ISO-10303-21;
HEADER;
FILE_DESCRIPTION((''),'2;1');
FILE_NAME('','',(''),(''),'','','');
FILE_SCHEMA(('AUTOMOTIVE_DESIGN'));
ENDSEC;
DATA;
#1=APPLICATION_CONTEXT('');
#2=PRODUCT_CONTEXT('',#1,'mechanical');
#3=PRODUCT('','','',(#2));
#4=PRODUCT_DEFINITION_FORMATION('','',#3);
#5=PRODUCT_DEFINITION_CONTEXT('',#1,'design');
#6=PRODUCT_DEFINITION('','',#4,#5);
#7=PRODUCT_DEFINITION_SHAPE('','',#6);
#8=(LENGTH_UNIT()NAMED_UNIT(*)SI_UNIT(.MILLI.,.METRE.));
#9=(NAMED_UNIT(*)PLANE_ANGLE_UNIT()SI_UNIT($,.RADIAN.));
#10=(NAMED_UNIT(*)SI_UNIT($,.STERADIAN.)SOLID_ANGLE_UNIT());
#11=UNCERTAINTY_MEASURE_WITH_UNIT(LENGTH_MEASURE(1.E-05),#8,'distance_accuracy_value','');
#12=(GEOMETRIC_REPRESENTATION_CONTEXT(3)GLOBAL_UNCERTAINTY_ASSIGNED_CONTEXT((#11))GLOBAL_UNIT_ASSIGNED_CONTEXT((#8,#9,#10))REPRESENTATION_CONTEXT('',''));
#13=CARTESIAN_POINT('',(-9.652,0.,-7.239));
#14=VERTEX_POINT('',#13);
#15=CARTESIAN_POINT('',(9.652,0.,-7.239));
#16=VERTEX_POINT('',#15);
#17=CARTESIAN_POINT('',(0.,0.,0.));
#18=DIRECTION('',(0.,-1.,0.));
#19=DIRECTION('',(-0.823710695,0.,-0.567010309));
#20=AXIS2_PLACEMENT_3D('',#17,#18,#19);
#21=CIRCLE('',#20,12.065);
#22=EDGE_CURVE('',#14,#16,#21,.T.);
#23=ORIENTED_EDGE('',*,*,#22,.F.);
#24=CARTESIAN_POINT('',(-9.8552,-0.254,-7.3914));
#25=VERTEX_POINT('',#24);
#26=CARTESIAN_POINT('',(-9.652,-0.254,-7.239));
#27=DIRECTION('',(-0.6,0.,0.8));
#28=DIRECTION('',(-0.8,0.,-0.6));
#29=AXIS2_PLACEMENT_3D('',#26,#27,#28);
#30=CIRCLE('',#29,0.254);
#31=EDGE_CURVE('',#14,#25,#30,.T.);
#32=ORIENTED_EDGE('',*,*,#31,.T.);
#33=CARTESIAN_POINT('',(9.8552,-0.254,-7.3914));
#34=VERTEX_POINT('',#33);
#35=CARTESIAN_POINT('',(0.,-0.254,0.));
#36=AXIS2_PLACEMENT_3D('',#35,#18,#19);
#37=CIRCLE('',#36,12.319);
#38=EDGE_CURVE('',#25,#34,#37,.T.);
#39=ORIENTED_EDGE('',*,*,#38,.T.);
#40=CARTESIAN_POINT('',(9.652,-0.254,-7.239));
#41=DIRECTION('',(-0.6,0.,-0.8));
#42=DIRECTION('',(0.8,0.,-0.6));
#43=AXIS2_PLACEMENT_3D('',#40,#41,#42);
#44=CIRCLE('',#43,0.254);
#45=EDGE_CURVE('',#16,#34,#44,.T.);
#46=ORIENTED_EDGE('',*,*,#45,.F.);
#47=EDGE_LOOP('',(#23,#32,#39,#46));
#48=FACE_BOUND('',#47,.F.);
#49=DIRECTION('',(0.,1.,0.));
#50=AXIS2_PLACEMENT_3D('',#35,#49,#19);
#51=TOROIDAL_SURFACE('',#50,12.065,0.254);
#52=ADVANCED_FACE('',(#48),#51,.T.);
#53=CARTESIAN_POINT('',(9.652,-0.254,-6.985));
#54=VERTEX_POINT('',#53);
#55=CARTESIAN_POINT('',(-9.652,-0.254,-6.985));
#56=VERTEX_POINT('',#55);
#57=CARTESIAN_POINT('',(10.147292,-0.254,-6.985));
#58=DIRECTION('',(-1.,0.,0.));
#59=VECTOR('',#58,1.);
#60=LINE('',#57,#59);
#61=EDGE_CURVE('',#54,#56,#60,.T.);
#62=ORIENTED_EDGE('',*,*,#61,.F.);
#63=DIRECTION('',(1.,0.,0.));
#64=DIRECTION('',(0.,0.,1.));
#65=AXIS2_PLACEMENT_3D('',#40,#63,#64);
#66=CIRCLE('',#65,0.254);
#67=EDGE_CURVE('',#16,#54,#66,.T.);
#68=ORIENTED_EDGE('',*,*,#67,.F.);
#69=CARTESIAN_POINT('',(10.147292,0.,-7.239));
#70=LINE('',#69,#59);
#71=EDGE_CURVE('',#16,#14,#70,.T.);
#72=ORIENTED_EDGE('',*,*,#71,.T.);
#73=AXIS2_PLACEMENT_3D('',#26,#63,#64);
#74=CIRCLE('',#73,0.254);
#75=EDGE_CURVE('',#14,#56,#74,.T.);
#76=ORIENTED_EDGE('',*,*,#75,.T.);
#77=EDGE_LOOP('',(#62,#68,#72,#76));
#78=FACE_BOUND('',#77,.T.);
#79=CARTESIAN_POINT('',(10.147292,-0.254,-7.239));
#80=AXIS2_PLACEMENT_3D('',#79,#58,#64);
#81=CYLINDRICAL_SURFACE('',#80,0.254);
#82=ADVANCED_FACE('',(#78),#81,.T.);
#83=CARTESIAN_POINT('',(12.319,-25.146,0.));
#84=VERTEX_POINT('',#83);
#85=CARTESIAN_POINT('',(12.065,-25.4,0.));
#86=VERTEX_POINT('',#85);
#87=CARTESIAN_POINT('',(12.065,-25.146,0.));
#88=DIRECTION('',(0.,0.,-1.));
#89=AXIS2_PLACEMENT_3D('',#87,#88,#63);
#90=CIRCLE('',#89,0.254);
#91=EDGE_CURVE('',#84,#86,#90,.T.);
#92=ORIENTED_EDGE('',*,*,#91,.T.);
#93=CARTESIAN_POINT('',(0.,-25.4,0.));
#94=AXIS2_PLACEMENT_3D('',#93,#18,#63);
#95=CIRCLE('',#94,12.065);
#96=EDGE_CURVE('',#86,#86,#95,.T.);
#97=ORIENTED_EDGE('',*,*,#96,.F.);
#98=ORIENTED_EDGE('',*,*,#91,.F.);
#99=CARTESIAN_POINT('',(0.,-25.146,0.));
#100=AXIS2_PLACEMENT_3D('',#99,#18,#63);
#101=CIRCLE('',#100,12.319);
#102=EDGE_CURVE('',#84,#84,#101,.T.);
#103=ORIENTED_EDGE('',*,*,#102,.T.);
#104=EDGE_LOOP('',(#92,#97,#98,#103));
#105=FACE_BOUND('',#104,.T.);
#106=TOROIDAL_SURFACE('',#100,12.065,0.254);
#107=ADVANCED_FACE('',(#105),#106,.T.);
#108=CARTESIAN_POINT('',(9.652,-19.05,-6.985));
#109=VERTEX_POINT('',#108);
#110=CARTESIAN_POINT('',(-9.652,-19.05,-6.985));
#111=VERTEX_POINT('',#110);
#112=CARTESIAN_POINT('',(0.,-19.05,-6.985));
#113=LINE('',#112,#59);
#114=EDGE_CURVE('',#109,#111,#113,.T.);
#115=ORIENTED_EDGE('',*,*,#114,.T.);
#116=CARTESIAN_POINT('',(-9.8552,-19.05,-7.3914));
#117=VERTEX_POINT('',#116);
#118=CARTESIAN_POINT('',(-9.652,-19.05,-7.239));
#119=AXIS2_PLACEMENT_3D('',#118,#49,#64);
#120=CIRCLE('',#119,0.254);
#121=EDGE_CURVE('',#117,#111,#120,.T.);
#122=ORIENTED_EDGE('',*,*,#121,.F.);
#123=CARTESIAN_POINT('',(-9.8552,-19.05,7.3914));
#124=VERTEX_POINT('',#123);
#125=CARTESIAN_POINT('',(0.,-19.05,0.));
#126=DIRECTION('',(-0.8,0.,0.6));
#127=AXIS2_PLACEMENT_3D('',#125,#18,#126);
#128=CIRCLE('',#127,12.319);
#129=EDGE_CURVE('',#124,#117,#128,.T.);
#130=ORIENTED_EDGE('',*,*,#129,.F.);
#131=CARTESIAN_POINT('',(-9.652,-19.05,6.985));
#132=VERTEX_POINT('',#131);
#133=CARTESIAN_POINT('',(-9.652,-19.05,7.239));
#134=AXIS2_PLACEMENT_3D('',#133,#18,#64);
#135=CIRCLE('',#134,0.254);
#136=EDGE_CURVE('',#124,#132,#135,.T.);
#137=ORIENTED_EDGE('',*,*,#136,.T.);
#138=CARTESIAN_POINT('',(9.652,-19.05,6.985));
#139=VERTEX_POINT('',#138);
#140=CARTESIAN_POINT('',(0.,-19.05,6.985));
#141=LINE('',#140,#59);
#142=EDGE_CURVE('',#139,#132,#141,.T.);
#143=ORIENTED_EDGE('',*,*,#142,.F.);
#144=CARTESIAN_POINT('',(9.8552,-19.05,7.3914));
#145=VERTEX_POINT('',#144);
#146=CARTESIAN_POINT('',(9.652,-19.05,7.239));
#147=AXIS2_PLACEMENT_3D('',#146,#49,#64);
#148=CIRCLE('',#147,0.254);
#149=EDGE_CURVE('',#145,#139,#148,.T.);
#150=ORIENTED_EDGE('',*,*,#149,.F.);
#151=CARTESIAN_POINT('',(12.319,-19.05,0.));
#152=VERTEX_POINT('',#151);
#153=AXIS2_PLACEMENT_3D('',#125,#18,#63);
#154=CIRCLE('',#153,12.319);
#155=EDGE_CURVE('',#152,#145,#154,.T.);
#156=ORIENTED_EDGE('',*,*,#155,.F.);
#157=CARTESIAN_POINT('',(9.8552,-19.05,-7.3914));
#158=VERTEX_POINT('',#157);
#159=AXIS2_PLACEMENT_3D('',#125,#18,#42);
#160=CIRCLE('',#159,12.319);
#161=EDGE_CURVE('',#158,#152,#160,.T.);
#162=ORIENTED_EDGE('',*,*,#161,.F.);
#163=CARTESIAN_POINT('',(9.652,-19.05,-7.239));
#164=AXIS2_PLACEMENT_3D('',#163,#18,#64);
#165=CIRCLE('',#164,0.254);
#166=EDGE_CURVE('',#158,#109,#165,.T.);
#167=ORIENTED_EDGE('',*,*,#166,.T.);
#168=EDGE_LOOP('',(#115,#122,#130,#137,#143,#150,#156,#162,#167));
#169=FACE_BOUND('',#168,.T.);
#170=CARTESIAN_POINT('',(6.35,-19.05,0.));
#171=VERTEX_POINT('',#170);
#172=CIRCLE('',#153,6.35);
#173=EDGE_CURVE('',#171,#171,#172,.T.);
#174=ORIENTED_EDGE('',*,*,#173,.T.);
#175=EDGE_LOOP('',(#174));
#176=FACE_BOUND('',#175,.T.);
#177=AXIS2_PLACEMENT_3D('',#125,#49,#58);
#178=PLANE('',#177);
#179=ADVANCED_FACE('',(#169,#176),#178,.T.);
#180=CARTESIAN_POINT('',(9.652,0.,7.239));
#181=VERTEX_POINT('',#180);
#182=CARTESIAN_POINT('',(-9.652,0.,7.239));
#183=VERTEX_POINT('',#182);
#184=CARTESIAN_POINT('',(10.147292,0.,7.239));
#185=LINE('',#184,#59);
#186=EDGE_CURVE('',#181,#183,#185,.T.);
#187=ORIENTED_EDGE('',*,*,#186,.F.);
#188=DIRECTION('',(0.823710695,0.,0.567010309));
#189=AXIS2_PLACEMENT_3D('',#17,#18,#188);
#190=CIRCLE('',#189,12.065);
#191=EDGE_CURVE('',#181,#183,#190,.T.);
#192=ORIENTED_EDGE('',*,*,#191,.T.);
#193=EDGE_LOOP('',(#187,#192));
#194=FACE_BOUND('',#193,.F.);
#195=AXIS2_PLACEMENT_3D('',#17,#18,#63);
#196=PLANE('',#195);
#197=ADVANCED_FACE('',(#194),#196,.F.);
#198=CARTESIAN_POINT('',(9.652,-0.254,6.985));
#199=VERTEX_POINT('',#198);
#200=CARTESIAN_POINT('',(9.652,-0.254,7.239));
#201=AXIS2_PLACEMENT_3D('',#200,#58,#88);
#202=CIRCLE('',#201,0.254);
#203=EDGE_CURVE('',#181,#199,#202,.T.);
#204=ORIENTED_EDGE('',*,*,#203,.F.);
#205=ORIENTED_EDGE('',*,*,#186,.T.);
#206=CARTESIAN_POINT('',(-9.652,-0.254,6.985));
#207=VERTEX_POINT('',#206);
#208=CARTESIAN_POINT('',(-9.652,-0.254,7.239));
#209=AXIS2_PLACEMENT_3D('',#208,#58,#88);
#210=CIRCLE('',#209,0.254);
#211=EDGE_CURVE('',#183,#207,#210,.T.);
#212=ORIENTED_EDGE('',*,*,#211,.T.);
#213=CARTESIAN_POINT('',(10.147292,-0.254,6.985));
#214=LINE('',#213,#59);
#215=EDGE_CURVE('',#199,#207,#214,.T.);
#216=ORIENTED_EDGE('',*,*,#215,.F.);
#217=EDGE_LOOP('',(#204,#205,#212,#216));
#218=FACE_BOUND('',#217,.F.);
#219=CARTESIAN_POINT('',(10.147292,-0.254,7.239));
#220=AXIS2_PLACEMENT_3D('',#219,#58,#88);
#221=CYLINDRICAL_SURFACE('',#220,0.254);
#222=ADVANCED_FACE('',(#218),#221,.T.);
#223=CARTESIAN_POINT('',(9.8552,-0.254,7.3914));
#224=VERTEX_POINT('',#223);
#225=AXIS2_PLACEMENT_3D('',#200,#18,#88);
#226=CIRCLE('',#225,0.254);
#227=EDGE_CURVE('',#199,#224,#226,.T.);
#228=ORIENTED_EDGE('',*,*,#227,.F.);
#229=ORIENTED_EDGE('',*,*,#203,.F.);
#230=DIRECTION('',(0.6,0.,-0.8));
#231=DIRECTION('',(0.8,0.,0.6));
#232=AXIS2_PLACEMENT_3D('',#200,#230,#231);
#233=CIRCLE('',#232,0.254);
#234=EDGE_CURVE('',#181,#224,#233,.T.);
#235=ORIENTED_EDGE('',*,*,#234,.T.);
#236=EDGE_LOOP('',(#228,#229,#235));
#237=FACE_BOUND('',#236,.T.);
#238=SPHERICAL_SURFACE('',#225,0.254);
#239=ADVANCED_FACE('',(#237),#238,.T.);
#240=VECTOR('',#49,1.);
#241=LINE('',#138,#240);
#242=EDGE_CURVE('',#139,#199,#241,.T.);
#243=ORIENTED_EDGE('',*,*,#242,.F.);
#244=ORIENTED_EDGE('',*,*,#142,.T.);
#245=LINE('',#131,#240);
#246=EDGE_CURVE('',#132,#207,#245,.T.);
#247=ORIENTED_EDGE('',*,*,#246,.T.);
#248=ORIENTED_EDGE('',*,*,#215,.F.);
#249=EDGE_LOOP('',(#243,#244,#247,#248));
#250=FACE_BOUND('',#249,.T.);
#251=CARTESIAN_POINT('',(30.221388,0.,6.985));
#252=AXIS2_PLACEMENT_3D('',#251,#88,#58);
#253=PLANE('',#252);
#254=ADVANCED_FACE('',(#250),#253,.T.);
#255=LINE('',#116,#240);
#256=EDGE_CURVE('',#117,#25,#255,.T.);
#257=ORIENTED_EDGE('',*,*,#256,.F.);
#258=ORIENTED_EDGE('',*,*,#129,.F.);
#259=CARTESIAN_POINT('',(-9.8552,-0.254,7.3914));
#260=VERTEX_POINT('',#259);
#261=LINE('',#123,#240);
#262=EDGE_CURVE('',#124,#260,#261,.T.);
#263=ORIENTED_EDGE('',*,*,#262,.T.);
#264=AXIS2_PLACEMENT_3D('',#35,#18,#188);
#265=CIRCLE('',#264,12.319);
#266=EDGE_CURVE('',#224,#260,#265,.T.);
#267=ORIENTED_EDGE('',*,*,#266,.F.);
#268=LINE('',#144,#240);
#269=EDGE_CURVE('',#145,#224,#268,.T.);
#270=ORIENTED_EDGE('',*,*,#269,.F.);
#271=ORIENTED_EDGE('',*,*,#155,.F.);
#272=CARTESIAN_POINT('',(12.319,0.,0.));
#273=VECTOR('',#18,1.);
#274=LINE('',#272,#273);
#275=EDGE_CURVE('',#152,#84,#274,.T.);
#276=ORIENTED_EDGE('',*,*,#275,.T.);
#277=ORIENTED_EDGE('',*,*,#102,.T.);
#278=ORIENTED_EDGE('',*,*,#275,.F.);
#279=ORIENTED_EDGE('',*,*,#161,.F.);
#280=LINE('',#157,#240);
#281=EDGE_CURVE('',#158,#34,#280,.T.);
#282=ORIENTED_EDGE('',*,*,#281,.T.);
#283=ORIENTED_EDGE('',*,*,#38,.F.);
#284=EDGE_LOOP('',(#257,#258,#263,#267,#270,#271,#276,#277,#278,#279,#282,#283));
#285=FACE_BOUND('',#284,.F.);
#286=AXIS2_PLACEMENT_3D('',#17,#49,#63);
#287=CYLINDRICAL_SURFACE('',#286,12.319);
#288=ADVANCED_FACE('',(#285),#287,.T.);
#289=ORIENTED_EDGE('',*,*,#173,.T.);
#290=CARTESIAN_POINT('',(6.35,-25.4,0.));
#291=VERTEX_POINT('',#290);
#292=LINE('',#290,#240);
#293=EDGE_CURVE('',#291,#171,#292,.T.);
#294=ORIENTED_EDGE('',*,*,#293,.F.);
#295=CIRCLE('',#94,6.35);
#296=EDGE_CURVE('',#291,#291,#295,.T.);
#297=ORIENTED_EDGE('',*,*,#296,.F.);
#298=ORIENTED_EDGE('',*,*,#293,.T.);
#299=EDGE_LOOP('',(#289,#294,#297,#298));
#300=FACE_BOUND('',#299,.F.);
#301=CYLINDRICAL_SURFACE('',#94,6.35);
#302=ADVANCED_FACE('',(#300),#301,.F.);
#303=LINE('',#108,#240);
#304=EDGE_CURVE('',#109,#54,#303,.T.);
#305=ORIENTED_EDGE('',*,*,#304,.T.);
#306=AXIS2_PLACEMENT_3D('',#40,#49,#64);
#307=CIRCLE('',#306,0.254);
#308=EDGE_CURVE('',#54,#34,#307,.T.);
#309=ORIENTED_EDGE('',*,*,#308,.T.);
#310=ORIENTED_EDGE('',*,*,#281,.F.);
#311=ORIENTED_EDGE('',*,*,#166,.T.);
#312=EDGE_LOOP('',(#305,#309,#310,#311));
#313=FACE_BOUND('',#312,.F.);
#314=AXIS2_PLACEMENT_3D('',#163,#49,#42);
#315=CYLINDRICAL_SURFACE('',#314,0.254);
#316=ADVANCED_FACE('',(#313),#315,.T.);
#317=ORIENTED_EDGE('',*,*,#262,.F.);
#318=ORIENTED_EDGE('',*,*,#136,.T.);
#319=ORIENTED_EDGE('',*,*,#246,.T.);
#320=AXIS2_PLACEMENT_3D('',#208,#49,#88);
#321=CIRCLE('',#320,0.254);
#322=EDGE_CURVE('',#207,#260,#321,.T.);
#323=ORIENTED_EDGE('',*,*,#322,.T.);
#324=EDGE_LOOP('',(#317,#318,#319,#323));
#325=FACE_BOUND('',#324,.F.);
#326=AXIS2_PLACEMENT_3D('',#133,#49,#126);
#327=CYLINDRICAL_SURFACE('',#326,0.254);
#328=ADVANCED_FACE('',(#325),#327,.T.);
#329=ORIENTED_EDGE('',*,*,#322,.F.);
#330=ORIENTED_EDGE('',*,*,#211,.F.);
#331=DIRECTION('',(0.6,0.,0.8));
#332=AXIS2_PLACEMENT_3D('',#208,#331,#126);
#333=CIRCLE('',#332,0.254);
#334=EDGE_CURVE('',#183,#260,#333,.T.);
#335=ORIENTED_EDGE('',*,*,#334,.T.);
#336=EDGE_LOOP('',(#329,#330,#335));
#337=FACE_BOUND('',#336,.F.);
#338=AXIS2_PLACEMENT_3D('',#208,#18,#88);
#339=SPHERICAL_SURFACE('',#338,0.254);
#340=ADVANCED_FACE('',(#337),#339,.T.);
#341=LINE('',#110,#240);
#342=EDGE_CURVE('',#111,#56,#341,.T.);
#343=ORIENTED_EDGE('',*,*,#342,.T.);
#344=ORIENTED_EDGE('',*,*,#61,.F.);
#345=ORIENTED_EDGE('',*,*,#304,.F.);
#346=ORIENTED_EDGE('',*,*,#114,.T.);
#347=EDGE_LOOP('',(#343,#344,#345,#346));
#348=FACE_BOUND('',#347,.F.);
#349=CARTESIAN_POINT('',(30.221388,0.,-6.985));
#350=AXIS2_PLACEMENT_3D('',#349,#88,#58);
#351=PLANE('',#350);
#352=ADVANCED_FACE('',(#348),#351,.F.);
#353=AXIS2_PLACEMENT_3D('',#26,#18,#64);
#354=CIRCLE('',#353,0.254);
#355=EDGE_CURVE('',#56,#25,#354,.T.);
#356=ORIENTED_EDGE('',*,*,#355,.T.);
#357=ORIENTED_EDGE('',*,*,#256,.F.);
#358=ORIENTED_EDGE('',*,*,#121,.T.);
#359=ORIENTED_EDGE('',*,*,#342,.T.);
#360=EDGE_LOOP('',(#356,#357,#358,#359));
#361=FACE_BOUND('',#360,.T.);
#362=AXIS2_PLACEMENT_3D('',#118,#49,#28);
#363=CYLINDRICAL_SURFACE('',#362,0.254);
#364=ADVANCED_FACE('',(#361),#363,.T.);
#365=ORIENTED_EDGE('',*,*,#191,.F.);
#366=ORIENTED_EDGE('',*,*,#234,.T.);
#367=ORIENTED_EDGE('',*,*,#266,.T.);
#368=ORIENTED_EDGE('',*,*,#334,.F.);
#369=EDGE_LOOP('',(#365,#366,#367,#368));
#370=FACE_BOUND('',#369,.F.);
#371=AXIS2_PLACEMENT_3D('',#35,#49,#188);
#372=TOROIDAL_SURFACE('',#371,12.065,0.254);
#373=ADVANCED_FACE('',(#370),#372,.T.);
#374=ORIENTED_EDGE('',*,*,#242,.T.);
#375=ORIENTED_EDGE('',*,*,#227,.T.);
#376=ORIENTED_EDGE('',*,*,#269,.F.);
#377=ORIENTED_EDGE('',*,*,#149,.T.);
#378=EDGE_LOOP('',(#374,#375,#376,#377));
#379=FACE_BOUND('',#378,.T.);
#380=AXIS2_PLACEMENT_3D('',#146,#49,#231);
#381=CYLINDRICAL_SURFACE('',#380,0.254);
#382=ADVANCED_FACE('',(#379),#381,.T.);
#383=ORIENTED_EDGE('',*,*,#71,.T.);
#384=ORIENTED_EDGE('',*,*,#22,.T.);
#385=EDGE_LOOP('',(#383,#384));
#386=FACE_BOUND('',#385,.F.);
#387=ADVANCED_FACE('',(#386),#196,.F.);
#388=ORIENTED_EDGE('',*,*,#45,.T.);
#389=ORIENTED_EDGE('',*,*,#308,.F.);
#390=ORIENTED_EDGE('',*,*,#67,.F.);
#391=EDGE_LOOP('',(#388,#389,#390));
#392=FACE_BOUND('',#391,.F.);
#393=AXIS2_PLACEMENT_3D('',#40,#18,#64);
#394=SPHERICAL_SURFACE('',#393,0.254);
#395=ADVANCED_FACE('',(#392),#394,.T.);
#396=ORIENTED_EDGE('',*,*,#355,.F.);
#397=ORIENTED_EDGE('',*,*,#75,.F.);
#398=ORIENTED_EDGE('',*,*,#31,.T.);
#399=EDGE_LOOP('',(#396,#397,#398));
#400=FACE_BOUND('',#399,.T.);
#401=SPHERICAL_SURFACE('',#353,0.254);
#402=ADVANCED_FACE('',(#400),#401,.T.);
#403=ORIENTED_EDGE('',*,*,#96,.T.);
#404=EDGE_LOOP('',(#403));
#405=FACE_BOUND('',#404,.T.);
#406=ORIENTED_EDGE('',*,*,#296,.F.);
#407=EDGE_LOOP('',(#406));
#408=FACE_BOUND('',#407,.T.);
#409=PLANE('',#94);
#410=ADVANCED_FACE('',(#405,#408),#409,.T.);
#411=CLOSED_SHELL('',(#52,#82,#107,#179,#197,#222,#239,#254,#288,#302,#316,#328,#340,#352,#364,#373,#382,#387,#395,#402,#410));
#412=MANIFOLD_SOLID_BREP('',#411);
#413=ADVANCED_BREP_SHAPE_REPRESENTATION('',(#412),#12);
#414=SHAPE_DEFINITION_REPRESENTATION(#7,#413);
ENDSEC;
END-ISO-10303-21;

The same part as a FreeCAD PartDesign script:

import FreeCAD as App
import Part
import Sketcher
Q = App.Units.Quantity


def edges_at(feature, points):
    """Names of the edges that pass closest to the given points."""
    edges = feature.Shape.Edges
    near = lambda p: min(range(len(edges)), key=lambda i: edges[i].distToShape(Part.Vertex(*p))[0])
    return sorted({f"Edge{near(p) + 1}" for p in points})

doc = App.newDocument("Part")
body = doc.addObject("PartDesign::Body", "Body")

sketch1 = doc.addObject("Sketcher::SketchObject", "Sketch")
body.addObject(sketch1)
sketch1.AttachmentSupport = (doc.XZ_Plane, [""])
sketch1.MapMode = "FlatFace"
sketch1.addGeometry(Part.Circle(App.Vector(0, 0, 0), App.Vector(0, 0, 1), 12), False)
sketch1.addConstraint(Sketcher.Constraint("Coincident", 0, 3, -1, 1))
sketch1.addConstraint(Sketcher.Constraint("Diameter", 0, Q("0.97 in")))
pad1 = doc.addObject("PartDesign::Pad", "Pad")
body.addObject(pad1)
pad1.Profile = sketch1
pad1.Length = Q("1 in")

sketch2 = doc.addObject("Sketcher::SketchObject", "Sketch001")
body.addObject(sketch2)
sketch2.AttachmentSupport = (doc.XZ_Plane, [""])
sketch2.MapMode = "FlatFace"
sketch2.addGeometry(Part.LineSegment(App.Vector(30, 7, 0), App.Vector(30, -7, 0)), False)
sketch2.addGeometry(Part.LineSegment(App.Vector(30, -7, 0), App.Vector(-30, -7, 0)), False)
sketch2.addGeometry(Part.LineSegment(App.Vector(-30, -7, 0), App.Vector(-30, 7, 0)), False)
sketch2.addGeometry(Part.LineSegment(App.Vector(-30, 7, 0), App.Vector(30, 7, 0)), False)
sketch2.addConstraint(Sketcher.Constraint("Coincident", 0, 2, 1, 1))
sketch2.addConstraint(Sketcher.Constraint("Coincident", 1, 2, 2, 1))
sketch2.addConstraint(Sketcher.Constraint("Coincident", 2, 2, 3, 1))
sketch2.addConstraint(Sketcher.Constraint("Coincident", 3, 2, 0, 1))
sketch2.addConstraint(Sketcher.Constraint("Vertical", 0))
sketch2.addConstraint(Sketcher.Constraint("Horizontal", 1))
sketch2.addConstraint(Sketcher.Constraint("Vertical", 2))
sketch2.addConstraint(Sketcher.Constraint("Horizontal", 3))
sketch2.addConstraint(Sketcher.Constraint("Symmetric", 0, 2, 2, 2, -1, 1))
sketch2.addConstraint(Sketcher.Constraint("DistanceY", 0, 2, 0, 1, Q("0.55 in")))
sketch2.addConstraint(Sketcher.Constraint("DistanceX", 1, 2, 1, 1, Q("60.442776 mm")))
pocket1 = doc.addObject("PartDesign::Pocket", "Pocket")
body.addObject(pocket1)
pocket1.Profile = sketch2
pocket1.Length = Q("0.75 in")
pocket1.Reversed = True

sketch3 = doc.addObject("Sketcher::SketchObject", "Sketch002")
body.addObject(sketch3)
sketch3.AttachmentSupport = (doc.XZ_Plane, [""])
sketch3.MapMode = "FlatFace"
sketch3.AttachmentOffset = App.Placement(App.Vector(0, 0, 1 * 25.4), App.Rotation())
sketch3.addGeometry(Part.Circle(App.Vector(0, 0, 0), App.Vector(0, 0, 1), 6), False)
sketch3.addConstraint(Sketcher.Constraint("Coincident", 0, 3, -1, 1))
sketch3.addConstraint(Sketcher.Constraint("Diameter", 0, Q("0.5 in")))
pocket2 = doc.addObject("PartDesign::Pocket", "Pocket001")
body.addObject(pocket2)
pocket2.Profile = sketch3
pocket2.Length = Q("1 in")
doc.recompute()

fillet = doc.addObject("PartDesign::Fillet", "Fillet")
body.addObject(fillet)
fillet.Base = (pocket2, edges_at(pocket2, [
    (10.147, -9.525, 6.985),
    (-10.147, -9.525, 6.985),
    (0, 0, 6.985),
    (0, 0, 12.319),
    (0, 0, -12.319),
    (-10.147, -9.525, -6.985),
    (10.147, -9.525, -6.985),
    (0, 0, -6.985),
    (-12.319, -25.4, 0),
]))
fillet.Radius = Q("0.01 in")

doc.recompute()
